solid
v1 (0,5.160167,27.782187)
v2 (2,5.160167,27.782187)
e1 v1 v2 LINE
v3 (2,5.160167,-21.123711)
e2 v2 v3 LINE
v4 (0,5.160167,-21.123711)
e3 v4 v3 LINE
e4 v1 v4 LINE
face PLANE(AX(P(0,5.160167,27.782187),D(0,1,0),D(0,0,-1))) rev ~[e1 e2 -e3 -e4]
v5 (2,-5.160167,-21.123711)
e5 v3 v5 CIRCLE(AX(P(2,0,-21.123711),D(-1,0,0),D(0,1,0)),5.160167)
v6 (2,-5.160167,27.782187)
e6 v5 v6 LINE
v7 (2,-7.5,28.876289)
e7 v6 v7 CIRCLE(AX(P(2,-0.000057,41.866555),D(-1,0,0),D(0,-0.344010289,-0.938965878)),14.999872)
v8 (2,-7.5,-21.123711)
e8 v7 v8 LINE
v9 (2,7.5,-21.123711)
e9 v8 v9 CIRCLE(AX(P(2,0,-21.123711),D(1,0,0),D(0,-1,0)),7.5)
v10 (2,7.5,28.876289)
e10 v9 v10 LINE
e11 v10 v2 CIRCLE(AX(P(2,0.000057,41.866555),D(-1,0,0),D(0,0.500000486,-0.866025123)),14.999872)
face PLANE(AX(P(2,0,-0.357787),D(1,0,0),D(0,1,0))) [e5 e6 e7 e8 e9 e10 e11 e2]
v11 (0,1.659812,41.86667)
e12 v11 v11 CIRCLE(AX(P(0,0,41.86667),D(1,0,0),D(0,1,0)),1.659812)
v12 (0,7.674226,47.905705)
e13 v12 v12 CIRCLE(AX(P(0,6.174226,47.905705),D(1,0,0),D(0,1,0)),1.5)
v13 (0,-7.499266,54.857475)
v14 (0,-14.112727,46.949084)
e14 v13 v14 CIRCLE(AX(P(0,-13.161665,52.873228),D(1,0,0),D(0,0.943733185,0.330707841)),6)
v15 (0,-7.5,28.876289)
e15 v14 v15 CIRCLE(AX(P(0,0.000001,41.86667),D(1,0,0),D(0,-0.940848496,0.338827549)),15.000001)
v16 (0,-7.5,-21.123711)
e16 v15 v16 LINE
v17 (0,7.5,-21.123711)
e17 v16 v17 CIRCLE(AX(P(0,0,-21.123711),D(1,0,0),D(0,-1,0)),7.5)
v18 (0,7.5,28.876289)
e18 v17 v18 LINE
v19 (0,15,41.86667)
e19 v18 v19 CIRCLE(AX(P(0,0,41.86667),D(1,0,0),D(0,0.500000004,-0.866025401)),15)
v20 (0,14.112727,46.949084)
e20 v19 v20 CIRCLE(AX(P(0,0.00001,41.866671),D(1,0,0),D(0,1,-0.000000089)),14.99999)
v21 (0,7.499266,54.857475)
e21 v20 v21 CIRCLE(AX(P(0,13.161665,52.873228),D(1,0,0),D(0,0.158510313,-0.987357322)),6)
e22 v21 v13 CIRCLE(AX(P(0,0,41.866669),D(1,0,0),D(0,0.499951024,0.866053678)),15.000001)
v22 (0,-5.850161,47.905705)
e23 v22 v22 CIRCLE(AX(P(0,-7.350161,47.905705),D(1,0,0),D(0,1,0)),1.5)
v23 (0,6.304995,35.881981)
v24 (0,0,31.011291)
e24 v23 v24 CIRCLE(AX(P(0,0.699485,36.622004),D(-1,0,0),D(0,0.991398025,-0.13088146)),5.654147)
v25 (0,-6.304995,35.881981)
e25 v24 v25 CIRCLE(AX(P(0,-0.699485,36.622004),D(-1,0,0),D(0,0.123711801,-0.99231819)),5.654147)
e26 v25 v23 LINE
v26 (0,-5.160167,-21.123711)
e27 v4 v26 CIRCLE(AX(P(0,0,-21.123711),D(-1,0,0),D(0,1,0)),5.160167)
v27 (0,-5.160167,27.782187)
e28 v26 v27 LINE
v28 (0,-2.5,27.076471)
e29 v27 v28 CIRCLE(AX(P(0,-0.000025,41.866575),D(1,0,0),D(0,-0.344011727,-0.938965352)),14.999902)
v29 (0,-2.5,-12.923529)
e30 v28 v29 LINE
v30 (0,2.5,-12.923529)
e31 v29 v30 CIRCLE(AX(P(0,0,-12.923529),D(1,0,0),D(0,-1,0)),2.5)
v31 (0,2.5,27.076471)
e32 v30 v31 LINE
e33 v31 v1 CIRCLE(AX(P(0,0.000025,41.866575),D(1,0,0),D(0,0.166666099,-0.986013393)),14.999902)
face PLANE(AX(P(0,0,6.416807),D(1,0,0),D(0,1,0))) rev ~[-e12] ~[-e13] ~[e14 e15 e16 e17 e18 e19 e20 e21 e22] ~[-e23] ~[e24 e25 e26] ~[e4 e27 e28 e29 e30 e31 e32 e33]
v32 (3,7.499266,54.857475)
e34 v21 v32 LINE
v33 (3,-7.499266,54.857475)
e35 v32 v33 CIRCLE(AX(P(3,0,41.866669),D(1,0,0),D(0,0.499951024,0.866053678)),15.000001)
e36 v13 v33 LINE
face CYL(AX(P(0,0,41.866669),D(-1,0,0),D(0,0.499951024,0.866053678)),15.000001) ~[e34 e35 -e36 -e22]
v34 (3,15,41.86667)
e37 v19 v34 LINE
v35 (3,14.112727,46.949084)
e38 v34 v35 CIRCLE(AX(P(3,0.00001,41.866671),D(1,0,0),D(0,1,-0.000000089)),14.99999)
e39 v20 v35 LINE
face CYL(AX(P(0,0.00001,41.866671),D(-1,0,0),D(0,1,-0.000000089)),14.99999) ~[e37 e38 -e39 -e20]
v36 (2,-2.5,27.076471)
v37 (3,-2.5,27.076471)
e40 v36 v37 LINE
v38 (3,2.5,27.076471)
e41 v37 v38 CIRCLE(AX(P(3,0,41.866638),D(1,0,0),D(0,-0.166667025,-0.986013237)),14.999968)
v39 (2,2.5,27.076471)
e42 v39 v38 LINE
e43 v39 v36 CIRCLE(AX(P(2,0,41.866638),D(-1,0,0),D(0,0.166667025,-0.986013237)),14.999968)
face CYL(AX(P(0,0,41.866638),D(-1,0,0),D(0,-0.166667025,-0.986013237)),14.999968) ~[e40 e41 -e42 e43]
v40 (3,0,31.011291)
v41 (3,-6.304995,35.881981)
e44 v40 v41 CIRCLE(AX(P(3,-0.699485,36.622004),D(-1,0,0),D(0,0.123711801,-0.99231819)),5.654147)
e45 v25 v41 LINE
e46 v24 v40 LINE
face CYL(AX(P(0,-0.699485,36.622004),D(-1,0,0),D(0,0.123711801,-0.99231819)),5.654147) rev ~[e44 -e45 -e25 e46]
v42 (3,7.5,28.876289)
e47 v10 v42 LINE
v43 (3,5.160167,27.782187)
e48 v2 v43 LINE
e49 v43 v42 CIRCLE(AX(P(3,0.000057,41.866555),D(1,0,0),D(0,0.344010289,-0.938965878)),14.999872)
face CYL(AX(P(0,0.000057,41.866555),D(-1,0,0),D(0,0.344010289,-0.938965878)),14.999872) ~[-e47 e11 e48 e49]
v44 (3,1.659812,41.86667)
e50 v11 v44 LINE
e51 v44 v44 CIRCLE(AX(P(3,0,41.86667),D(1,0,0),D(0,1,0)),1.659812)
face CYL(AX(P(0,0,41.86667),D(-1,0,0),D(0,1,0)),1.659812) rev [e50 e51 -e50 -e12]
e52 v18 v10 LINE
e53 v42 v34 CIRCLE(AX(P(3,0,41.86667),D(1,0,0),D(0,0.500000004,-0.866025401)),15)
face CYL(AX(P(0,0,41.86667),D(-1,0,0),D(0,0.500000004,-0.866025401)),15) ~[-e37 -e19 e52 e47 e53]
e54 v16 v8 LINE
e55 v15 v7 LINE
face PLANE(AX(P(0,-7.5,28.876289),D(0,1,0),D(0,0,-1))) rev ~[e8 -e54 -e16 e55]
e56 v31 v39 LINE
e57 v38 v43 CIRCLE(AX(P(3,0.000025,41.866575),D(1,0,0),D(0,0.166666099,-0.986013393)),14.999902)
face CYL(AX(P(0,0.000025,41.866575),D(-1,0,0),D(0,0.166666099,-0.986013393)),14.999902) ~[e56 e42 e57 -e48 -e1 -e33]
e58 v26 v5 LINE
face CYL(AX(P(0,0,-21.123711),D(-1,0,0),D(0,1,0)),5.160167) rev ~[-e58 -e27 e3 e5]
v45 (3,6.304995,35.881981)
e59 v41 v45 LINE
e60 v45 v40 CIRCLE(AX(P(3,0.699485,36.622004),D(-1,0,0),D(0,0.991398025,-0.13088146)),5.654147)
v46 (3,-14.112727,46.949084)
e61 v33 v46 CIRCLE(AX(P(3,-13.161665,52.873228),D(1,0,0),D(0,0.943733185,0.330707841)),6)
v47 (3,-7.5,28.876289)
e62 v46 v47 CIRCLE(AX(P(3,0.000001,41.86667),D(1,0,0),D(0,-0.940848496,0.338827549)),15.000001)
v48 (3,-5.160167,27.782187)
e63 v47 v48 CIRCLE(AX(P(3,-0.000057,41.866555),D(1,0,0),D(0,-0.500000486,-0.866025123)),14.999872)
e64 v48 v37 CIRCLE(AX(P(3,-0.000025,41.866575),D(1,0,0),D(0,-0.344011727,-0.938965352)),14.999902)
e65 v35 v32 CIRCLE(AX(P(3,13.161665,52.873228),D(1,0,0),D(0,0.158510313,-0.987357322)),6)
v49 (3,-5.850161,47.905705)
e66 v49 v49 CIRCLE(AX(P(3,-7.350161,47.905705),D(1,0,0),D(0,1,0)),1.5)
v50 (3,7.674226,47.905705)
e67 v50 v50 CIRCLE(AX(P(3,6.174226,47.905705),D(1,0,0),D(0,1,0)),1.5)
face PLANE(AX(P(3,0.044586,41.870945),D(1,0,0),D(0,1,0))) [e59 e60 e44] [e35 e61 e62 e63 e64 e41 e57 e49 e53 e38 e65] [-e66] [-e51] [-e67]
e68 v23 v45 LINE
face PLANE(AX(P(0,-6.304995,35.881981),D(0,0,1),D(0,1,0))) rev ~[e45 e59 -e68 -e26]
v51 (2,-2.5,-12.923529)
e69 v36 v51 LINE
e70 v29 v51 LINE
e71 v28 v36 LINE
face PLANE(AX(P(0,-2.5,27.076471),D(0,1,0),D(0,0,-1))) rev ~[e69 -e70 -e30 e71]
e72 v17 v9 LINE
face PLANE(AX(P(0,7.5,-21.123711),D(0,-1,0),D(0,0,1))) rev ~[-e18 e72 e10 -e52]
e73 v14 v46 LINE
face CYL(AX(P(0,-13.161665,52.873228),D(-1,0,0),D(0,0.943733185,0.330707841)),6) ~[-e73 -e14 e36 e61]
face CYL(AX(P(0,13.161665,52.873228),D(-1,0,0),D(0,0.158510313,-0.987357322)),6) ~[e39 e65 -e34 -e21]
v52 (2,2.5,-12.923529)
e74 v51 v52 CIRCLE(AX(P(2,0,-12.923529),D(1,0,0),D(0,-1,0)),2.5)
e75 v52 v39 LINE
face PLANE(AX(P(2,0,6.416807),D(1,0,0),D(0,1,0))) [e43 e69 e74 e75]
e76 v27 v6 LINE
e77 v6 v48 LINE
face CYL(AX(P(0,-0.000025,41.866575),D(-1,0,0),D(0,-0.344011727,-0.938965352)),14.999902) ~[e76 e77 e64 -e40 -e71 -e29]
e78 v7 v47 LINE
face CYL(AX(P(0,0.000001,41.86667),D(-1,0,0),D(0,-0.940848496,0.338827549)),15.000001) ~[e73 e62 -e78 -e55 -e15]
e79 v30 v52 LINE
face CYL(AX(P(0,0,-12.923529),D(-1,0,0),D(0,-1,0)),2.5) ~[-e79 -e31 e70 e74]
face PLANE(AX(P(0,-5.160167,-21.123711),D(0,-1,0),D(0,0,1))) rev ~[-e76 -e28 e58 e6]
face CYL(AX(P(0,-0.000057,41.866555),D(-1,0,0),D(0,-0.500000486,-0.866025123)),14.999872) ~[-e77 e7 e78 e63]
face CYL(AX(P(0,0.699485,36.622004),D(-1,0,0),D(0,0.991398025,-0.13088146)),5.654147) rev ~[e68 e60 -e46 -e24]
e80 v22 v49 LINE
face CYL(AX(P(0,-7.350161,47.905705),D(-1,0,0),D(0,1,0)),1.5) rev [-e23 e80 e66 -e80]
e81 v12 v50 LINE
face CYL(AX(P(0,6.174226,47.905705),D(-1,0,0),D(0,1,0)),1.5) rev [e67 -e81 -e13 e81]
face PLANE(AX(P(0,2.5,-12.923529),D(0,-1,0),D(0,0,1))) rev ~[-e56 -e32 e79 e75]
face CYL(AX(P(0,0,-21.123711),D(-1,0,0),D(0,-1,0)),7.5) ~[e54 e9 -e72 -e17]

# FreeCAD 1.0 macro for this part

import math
import FreeCAD as App
import Part
import Sketcher
from FreeCAD import Vector
Q = App.Units.Quantity

doc = App.newDocument("Part")
body = doc.addObject("PartDesign::Body", "Body")

sketch1 = body.newObject("Sketcher::SketchObject", "Sketch")
sketch1.AttachmentSupport = (doc.getObject("YZ_Plane"), [""])
sketch1.MapMode = "FlatFace"
sketch1.addGeometry(Part.ArcOfCircle(Part.Circle(Vector(0, 41.86667, 0), Vector(0, 0, 1), 15), math.radians(-60), math.radians(-0.000001)), False)
sketch1.addGeometry(Part.ArcOfCircle(Part.Circle(Vector(0.00001, 41.866671, 0), Vector(0, 0, 1), 14.99999), math.radians(-0.000005), math.radians(19.80547)), False)
sketch1.addGeometry(Part.ArcOfCircle(Part.Circle(Vector(13.161665, 52.873228, 0), Vector(0, 0, 1), 6), math.radians(-80.87956), math.radians(160.688256)), False)
sketch1.addGeometry(Part.ArcOfCircle(Part.Circle(Vector(0, 41.866669, 0), Vector(0, 0, 1), 15.000001), math.radians(60.00324), math.radians(119.99676)), False)
sketch1.addGeometry(Part.ArcOfCircle(Part.Circle(Vector(-13.161665, 52.873228, 0), Vector(0, 0, 1), 6), math.radians(19.311744), math.radians(260.87956)), False)
sketch1.addGeometry(Part.ArcOfCircle(Part.Circle(Vector(0.000001, 41.86667, 0), Vector(0, 0, 1), 15.000001), math.radians(160.194542), math.radians(239.999996)), False)
sketch1.addGeometry(Part.ArcOfCircle(Part.Circle(Vector(-0.000057, 41.866555, 0), Vector(0, 0, 1), 14.999872), math.radians(-120.000032), math.radians(-110.121392)), False)
sketch1.addGeometry(Part.ArcOfCircle(Part.Circle(Vector(-0.000025, 41.866575, 0), Vector(0, 0, 1), 14.999902), math.radians(-110.12148), math.radians(-99.594035)), False)
sketch1.addGeometry(Part.ArcOfCircle(Part.Circle(Vector(0, 41.866638, 0), Vector(0, 0, 1), 14.999968), math.radians(-99.594089), math.radians(-80.405911)), False)
sketch1.addGeometry(Part.ArcOfCircle(Part.Circle(Vector(0.000025, 41.866575, 0), Vector(0, 0, 1), 14.999902), math.radians(-80.405965), math.radians(-69.87852)), False)
sketch1.addGeometry(Part.ArcOfCircle(Part.Circle(Vector(0.000057, 41.866555, 0), Vector(0, 0, 1), 14.999872), math.radians(-69.878608), math.radians(-59.999968)), False)
sketch1.addGeometry(Part.ArcOfCircle(Part.Circle(Vector(-0.699485, 36.622004, 0), Vector(0, 0, 1), 5.654147), math.radians(-172.479469), math.radians(-82.89363)), False)
sketch1.addGeometry(Part.LineSegment(Vector(-6.304995, 35.881981, 0), Vector(6.304995, 35.881981, 0)), False)
sketch1.addGeometry(Part.ArcOfCircle(Part.Circle(Vector(0.699485, 36.622004, 0), Vector(0, 0, 1), 5.654147), math.radians(-97.10637), math.radians(-7.520531)), False)
sketch1.addGeometry(Part.Circle(Vector(-7.350161, 47.905705, 0), Vector(0, 0, 1), 1.5), False)
sketch1.addGeometry(Part.Circle(Vector(0, 41.86667, 0), Vector(0, 0, 1), 1.659812), False)
sketch1.addGeometry(Part.Circle(Vector(6.174226, 47.905705, 0), Vector(0, 0, 1), 1.5), False)
sketch1.addConstraint(Sketcher.Constraint("Coincident", 0, 2, 1, 1))
sketch1.addConstraint(Sketcher.Constraint("Coincident", 1, 2, 2, 1))
sketch1.addConstraint(Sketcher.Constraint("Coincident", 2, 2, 3, 1))
sketch1.addConstraint(Sketcher.Constraint("Coincident", 3, 2, 4, 1))
sketch1.addConstraint(Sketcher.Constraint("Coincident", 4, 2, 5, 1))
sketch1.addConstraint(Sketcher.Constraint("Coincident", 5, 2, 6, 1))
sketch1.addConstraint(Sketcher.Constraint("Coincident", 6, 2, 7, 1))
sketch1.addConstraint(Sketcher.Constraint("Coincident", 7, 2, 8, 1))
sketch1.addConstraint(Sketcher.Constraint("Coincident", 8, 2, 9, 1))
sketch1.addConstraint(Sketcher.Constraint("Coincident", 9, 2, 10, 1))
sketch1.addConstraint(Sketcher.Constraint("Coincident", 10, 2, 0, 1))
sketch1.addConstraint(Sketcher.Constraint("Coincident", 11, 1, 12, 1))
sketch1.addConstraint(Sketcher.Constraint("Coincident", 12, 2, 13, 2))
sketch1.addConstraint(Sketcher.Constraint("Coincident", 13, 1, 11, 2))
sketch1.addConstraint(Sketcher.Constraint("Horizontal", 12))
sketch1.addConstraint(Sketcher.Constraint("Coincident", 3, 3, 0, 3))
sketch1.addConstraint(Sketcher.Constraint("Coincident", 5, 3, 0, 3))
sketch1.addConstraint(Sketcher.Constraint("Coincident", 15, 3, 0, 3))
sketch1.addConstraint(Sketcher.Constraint("PointOnObject", 0, 3, -2))
sketch1.addConstraint(Sketcher.Constraint("PointOnObject", 8, 3, -2))
sketch1.addConstraint(Sketcher.Constraint("PointOnObject", 13, 1, -2))
sketch1.addConstraint(Sketcher.Constraint("Diameter", 14, Q("3 mm")))
sketch1.addConstraint(Sketcher.Constraint("Diameter", 16, Q("3 mm")))
sketch1.addConstraint(Sketcher.Constraint("Radius", 0, Q("15 mm")))
sketch1.addConstraint(Sketcher.Constraint("Radius", 2, Q("6 mm")))
sketch1.addConstraint(Sketcher.Constraint("Radius", 3, Q("15.000001 mm")))
sketch1.addConstraint(Sketcher.Constraint("Radius", 4, Q("6 mm")))
sketch1.addConstraint(Sketcher.Constraint("Radius", 5, Q("15.000001 mm")))
sketch1.addConstraint(Sketcher.Constraint("DistanceX", 5, 2, 7, 2, Q("5 mm")))
sketch1.addConstraint(Sketcher.Constraint("DistanceX", 7, 2, 8, 2, Q("5 mm")))
sketch1.addConstraint(Sketcher.Constraint("DistanceX", 8, 2, 10, 2, Q("5 mm")))
sketch1.addConstraint(Sketcher.Constraint("DistanceX", 5, 2, -1, 1, Q("7.5 mm")))
sketch1.addConstraint(Sketcher.Constraint("Radius", 7, Q("14.999902 mm")))
sketch1.addConstraint(Sketcher.Constraint("Radius", 9, Q("14.999902 mm")))
sketch1.addConstraint(Sketcher.Constraint("Radius", 1, Q("14.99999 mm")))
sketch1.addConstraint(Sketcher.Constraint("Diameter", 15, Q("3.319624 mm")))
sketch1.addConstraint(Sketcher.Constraint("Radius", 6, Q("14.999872 mm")))
sketch1.addConstraint(Sketcher.Constraint("Radius", 8, Q("14.999968 mm")))
sketch1.addConstraint(Sketcher.Constraint("Radius", 10, Q("14.999872 mm")))
sketch1.addConstraint(Sketcher.Constraint("Radius", 11, Q("5.654147 mm")))
sketch1.addConstraint(Sketcher.Constraint("Radius", 13, Q("5.654147 mm")))
sketch1.addConstraint(Sketcher.Constraint("DistanceX", 12, 1, 12, 2, Q("12.60999 mm")))
sketch1.addConstraint(Sketcher.Constraint("DistanceX", 16, 3, 1, 2, Q("7.938501 mm")))
sketch1.addConstraint(Sketcher.Constraint("DistanceX", 2, 2, 2, 3, Q("5.662399 mm")))
sketch1.addConstraint(Sketcher.Constraint("DistanceX", 4, 3, 3, 2, Q("5.662399 mm")))
sketch1.addConstraint(Sketcher.Constraint("DistanceY", 9, 2, 10, 2, Q("1.094102 mm")))
sketch1.addConstraint(Sketcher.Constraint("DistanceY", -1, 1, 0, 3, Q("41.86667 mm")))
sketch1.addConstraint(Sketcher.Constraint("DistanceY", -1, 1, 1, 3, Q("41.866671 mm")))
sketch1.addConstraint(Sketcher.Constraint("DistanceX", 14, 3, -1, 1, Q("7.350161 mm")))
sketch1.addConstraint(Sketcher.Constraint("DistanceY", -1, 1, 0, 2, Q("41.86667 mm")))
sketch1.addConstraint(Sketcher.Constraint("DistanceY", -1, 1, 7, 2, Q("27.076471 mm")))
sketch1.addConstraint(Sketcher.Constraint("DistanceY", -1, 1, 11, 1, Q("35.881981 mm")))
sketch1.addConstraint(Sketcher.Constraint("DistanceY", -1, 1, 13, 1, Q("31.011291 mm")))
sketch1.addConstraint(Sketcher.Constraint("DistanceY", 3, 3, 2, 3, Q("11.006559 mm")))
sketch1.addConstraint(Sketcher.Constraint("DistanceY", 3, 3, 4, 3, Q("11.006559 mm")))
sketch1.addConstraint(Sketcher.Constraint("DistanceX", 4, 3, 6, 3, Q("13.161608 mm")))
sketch1.addConstraint(Sketcher.Constraint("DistanceX", 11, 3, 6, 3, Q("0.699428 mm")))
sketch1.addConstraint(Sketcher.Constraint("DistanceX", 11, 3, 10, 3, Q("0.699541 mm")))
sketch1.addConstraint(Sketcher.Constraint("DistanceY", 1, 2, 16, 3, Q("0.956621 mm")))
sketch1.addConstraint(Sketcher.Constraint("DistanceY", 14, 3, 3, 2, Q("6.95177 mm")))
sketch1.addConstraint(Sketcher.Constraint("DistanceX", 6, 2, 13, 3, Q("5.859652 mm")))
pad1 = body.newObject("PartDesign::Pad", "Pad")
pad1.Profile = sketch1
pad1.Length = 3

sketch2 = body.newObject("Sketcher::SketchObject", "Sketch001")
sketch2.AttachmentSupport = (doc.getObject("YZ_Plane"), [""])
sketch2.MapMode = "FlatFace"
sketch2.addGeometry(Part.LineSegment(Vector(2.5, -12.923529, 0), Vector(2.5, 27.076471, 0)), False)
sketch2.addGeometry(Part.ArcOfCircle(Part.Circle(Vector(0, 41.866638, 0), Vector(0, 0, 1), 14.999968), math.radians(-99.594089), math.radians(-80.405911)), False)
sketch2.addGeometry(Part.LineSegment(Vector(-2.5, 27.076471, 0), Vector(-2.5, -12.923529, 0)), False)
sketch2.addGeometry(Part.ArcOfCircle(Part.Circle(Vector(0, -12.923529, 0), Vector(0, 0, 1), 2.5), math.radians(180), math.radians(360)), False)
sketch2.addGeometry(Part.LineSegment(Vector(7.5, -21.123711, 0), Vector(7.5, 28.876289, 0)), False)
sketch2.addGeometry(Part.ArcOfCircle(Part.Circle(Vector(0.000057, 41.866555, 0), Vector(0, 0, 1), 14.999872), math.radians(-69.878608), math.radians(-59.999968)), False)
sketch2.addGeometry(Part.LineSegment(Vector(5.160167, 27.782187, 0), Vector(5.160167, -21.123711, 0)), False)
sketch2.addGeometry(Part.ArcOfCircle(Part.Circle(Vector(0, -21.123711, 0), Vector(0, 0, 1), 5.160167), math.radians(180), math.radians(360)), False)
sketch2.addGeometry(Part.LineSegment(Vector(-5.160167, -21.123711, 0), Vector(-5.160167, 27.782187, 0)), False)
sketch2.addGeometry(Part.ArcOfCircle(Part.Circle(Vector(-0.000057, 41.866555, 0), Vector(0, 0, 1), 14.999872), math.radians(-120.000032), math.radians(-110.121392)), False)
sketch2.addGeometry(Part.LineSegment(Vector(-7.5, 28.876289, 0), Vector(-7.5, -21.123711, 0)), False)
sketch2.addGeometry(Part.ArcOfCircle(Part.Circle(Vector(0, -21.123711, 0), Vector(0, 0, 1), 7.5), math.radians(180), math.radians(360)), False)
sketch2.addConstraint(Sketcher.Constraint("Coincident", 0, 2, 1, 2))
sketch2.addConstraint(Sketcher.Constraint("Coincident", 1, 1, 2, 1))
sketch2.addConstraint(Sketcher.Constraint("Tangent", 2, 2, 3, 1))
sketch2.addConstraint(Sketcher.Constraint("Tangent", 3, 2, 0, 1))
sketch2.addConstraint(Sketcher.Constraint("Coincident", 4, 2, 5, 2))
sketch2.addConstraint(Sketcher.Constraint("Coincident", 5, 1, 6, 1))
sketch2.addConstraint(Sketcher.Constraint("Tangent", 6, 2, 7, 2))
sketch2.addConstraint(Sketcher.Constraint("Tangent", 7, 1, 8, 1))
sketch2.addConstraint(Sketcher.Constraint("Coincident", 8, 2, 9, 2))
sketch2.addConstraint(Sketcher.Constraint("Coincident", 9, 1, 10, 1))
sketch2.addConstraint(Sketcher.Constraint("Tangent", 10, 2, 11, 1))
sketch2.addConstraint(Sketcher.Constraint("Tangent", 11, 2, 4, 1))
sketch2.addConstraint(Sketcher.Constraint("Vertical", 0))
sketch2.addConstraint(Sketcher.Constraint("Vertical", 2))
sketch2.addConstraint(Sketcher.Constraint("Vertical", 4))
sketch2.addConstraint(Sketcher.Constraint("Vertical", 6))
sketch2.addConstraint(Sketcher.Constraint("Vertical", 8))
sketch2.addConstraint(Sketcher.Constraint("Vertical", 10))
sketch2.addConstraint(Sketcher.Constraint("Coincident", 11, 3, 7, 3))
sketch2.addConstraint(Sketcher.Constraint("Equal", 5, 9))
sketch2.addConstraint(Sketcher.Constraint("Symmetric", 5, 3, 9, 3, -2))
sketch2.addConstraint(Sketcher.Constraint("Symmetric", 0, 2, 1, 1, -2))
sketch2.addConstraint(Sketcher.Constraint("PointOnObject", 7, 3, -2))
sketch2.addConstraint(Sketcher.Constraint("Radius", 3, Q("2.5 mm")))
sketch2.addConstraint(Sketcher.Constraint("Radius", 11, Q("7.5 mm")))
sketch2.addConstraint(Sketcher.Constraint("DistanceY", 0, 1, 0, 2, Q("40 mm")))
sketch2.addConstraint(Sketcher.Constraint("DistanceY", 4, 1, 4, 2, Q("50 mm")))
sketch2.addConstraint(Sketcher.Constraint("Radius", 1, Q("14.999968 mm")))
sketch2.addConstraint(Sketcher.Constraint("Radius", 5, Q("14.999872 mm")))
sketch2.addConstraint(Sketcher.Constraint("Radius", 7, Q("5.160167 mm")))
sketch2.addConstraint(Sketcher.Constraint("DistanceY", 8, 2, 4, 2, Q("1.094102 mm")))
sketch2.addConstraint(Sketcher.Constraint("DistanceY", 3, 3, -1, 1, Q("12.923529 mm")))
sketch2.addConstraint(Sketcher.Constraint("DistanceY", 7, 3, -1, 1, Q("21.123711 mm")))
pad2 = body.newObject("PartDesign::Pad", "Pad001")
pad2.Profile = sketch2
pad2.Length = 2

doc.recompute()
